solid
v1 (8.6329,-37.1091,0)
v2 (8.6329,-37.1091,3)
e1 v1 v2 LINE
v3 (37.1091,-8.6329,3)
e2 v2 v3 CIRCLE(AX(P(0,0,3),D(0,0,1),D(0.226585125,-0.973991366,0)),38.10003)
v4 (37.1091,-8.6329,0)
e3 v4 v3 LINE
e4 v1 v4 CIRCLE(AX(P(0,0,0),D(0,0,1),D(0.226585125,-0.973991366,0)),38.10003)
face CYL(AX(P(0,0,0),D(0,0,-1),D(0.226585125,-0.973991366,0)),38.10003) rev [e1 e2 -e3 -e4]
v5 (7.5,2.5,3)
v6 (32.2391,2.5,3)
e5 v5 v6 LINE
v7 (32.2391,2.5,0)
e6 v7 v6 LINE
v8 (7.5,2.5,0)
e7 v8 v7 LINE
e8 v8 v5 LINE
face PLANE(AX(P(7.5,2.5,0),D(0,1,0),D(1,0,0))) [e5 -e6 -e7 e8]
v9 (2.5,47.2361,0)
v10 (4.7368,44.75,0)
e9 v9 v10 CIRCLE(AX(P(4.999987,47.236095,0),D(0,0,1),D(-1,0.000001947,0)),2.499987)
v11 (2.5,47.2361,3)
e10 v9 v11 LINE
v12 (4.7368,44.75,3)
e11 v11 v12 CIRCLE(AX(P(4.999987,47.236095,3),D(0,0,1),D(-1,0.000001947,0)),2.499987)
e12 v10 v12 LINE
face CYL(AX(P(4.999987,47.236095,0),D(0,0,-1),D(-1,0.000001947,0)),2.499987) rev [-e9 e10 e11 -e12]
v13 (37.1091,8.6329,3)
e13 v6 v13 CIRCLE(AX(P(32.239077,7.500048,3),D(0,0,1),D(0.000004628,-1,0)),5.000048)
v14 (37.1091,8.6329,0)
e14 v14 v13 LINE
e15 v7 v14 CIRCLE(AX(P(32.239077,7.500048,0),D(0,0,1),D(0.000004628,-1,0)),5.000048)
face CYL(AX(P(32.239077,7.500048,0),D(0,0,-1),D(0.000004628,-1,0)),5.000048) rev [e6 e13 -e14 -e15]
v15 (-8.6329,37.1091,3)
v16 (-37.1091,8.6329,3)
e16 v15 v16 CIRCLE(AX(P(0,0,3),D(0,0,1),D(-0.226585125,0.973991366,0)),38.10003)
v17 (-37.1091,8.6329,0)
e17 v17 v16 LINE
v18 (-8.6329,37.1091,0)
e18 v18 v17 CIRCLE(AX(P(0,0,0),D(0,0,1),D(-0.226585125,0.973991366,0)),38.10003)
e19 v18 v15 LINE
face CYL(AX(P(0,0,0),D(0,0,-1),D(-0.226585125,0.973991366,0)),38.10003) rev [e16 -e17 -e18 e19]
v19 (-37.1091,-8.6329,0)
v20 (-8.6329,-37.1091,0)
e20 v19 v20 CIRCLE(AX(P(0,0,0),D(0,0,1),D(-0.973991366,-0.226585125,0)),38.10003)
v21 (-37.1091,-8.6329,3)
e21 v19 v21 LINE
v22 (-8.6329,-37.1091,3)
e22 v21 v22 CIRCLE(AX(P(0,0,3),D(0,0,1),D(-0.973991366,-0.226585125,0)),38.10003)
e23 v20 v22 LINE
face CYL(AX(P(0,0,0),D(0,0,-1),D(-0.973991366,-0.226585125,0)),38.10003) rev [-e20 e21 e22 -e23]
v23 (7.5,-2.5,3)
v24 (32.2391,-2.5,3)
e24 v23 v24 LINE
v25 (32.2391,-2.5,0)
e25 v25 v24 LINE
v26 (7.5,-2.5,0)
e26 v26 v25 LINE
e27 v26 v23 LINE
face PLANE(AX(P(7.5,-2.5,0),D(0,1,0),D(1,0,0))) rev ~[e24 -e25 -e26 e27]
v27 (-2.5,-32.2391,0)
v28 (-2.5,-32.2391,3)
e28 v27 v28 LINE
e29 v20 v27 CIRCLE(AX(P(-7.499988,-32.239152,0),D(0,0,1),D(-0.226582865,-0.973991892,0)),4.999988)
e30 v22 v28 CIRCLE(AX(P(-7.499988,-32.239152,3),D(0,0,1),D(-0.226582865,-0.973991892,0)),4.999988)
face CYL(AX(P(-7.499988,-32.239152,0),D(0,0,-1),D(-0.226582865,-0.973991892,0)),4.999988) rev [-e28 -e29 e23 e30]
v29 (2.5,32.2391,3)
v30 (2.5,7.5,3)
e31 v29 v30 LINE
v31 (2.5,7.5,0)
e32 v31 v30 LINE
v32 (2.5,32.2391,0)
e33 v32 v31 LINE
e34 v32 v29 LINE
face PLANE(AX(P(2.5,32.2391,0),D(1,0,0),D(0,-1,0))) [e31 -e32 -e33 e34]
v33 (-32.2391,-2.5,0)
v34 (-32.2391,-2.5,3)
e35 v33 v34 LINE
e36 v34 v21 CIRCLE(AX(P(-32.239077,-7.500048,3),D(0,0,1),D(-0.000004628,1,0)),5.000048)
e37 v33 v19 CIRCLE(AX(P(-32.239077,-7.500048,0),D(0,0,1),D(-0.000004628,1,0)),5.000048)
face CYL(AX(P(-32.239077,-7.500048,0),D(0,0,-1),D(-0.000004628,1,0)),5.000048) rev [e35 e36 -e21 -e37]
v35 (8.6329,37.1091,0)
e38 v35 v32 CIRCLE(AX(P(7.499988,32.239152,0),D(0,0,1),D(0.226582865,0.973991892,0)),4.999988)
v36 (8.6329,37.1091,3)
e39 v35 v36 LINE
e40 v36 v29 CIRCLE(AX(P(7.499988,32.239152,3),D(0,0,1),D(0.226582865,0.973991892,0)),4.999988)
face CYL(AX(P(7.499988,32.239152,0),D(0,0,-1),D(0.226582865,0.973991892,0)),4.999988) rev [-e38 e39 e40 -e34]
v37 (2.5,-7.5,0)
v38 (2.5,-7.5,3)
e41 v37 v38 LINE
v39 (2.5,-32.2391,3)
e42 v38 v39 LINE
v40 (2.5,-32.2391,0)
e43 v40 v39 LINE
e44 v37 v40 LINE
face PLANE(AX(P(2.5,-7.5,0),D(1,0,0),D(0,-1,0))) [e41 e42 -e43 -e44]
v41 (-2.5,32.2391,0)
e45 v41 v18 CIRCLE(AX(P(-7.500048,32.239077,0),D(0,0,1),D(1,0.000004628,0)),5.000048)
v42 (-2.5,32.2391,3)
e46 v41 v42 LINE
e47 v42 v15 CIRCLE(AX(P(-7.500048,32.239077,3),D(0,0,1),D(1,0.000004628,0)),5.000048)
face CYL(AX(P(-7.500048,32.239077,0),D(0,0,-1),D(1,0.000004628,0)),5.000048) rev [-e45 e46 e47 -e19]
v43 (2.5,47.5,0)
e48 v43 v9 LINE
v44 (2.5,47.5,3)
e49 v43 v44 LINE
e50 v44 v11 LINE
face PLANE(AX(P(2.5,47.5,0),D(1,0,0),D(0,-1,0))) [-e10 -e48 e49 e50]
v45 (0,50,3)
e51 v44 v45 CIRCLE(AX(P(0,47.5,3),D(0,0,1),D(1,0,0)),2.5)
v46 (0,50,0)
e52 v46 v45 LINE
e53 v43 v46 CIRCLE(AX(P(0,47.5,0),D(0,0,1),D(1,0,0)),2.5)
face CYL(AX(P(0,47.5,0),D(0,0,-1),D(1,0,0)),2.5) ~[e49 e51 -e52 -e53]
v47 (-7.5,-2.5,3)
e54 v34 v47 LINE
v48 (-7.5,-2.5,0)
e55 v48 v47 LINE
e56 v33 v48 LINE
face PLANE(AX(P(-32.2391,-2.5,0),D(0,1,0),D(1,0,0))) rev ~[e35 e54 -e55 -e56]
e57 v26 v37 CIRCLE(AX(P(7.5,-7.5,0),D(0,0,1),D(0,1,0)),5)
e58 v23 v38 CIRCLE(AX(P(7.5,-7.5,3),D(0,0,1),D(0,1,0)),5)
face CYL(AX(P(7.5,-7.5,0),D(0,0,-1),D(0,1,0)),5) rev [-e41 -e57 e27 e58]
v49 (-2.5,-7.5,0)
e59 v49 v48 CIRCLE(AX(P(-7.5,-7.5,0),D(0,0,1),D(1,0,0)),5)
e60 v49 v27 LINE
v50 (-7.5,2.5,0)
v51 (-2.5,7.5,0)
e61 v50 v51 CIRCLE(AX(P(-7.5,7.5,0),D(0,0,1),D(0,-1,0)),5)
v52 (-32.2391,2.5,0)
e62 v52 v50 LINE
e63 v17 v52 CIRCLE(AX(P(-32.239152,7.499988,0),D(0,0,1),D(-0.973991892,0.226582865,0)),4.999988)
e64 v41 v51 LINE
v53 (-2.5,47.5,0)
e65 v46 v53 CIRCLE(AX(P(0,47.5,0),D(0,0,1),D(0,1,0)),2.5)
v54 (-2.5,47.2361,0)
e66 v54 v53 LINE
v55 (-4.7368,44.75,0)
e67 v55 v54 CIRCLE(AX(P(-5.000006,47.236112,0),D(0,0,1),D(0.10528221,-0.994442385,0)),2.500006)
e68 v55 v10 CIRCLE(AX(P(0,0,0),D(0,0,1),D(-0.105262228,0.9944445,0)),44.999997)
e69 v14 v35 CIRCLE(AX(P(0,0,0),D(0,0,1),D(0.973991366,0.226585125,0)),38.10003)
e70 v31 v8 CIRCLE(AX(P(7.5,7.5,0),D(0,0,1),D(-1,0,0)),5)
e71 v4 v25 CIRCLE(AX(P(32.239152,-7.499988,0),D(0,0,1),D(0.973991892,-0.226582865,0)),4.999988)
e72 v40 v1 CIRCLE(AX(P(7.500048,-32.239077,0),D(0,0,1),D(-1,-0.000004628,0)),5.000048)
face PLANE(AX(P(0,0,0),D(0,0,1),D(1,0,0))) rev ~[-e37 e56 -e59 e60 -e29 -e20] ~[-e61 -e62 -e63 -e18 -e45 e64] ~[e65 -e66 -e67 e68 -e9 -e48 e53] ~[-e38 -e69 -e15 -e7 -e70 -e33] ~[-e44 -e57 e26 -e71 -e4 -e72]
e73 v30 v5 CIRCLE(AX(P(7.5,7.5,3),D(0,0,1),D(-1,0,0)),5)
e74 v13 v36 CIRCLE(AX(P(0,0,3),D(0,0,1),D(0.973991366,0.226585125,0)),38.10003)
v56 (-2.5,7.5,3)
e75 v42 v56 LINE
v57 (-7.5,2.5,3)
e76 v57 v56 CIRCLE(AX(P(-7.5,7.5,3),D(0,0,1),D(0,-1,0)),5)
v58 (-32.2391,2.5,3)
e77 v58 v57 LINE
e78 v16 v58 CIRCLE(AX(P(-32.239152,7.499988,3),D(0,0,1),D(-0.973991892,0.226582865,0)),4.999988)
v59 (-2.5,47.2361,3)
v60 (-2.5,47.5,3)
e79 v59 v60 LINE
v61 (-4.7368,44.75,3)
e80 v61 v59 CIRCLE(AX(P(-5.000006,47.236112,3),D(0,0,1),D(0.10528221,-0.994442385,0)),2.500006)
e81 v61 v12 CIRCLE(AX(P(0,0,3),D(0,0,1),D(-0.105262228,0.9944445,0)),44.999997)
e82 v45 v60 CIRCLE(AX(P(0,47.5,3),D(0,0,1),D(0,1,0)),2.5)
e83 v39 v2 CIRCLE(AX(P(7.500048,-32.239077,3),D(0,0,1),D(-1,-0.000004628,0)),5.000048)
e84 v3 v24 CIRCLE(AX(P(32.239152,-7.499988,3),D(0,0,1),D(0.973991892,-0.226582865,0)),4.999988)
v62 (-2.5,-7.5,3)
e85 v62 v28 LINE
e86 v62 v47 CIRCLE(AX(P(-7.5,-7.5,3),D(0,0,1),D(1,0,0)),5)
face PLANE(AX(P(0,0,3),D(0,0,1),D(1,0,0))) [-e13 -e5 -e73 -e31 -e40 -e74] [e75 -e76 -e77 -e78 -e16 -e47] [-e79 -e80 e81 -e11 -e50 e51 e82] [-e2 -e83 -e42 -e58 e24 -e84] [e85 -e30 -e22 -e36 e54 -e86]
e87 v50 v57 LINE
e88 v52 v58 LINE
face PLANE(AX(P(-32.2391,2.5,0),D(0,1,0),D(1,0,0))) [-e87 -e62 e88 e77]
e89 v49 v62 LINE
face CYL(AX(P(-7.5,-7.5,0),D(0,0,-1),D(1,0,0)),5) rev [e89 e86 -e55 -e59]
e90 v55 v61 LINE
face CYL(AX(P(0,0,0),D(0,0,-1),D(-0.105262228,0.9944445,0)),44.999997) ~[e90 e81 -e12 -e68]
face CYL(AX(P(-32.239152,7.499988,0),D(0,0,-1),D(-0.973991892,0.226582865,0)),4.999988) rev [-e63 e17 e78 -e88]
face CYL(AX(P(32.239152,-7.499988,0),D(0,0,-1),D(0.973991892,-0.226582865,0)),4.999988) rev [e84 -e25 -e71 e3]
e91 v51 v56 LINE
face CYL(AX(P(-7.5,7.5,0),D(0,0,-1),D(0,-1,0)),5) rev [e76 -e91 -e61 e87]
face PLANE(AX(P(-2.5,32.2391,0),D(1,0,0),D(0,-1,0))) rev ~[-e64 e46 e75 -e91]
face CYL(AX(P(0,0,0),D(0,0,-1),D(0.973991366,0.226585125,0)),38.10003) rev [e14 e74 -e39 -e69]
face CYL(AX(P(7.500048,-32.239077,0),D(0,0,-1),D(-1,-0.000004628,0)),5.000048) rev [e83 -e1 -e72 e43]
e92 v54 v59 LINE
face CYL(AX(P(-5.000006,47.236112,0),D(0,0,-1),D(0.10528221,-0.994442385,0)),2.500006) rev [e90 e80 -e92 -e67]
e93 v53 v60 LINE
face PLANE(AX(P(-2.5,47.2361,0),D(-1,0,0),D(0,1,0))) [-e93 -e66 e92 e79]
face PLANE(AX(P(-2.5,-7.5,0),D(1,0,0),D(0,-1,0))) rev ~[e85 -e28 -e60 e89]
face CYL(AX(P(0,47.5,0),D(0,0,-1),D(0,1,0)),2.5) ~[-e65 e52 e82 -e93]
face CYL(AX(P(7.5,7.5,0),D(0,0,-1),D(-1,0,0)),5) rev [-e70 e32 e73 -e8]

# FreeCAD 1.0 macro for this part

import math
import FreeCAD as App
import Part
import Sketcher

V = App.Vector

doc = App.newDocument("Part")
body = doc.addObject("PartDesign::Body", "Body")

# Sketch on XY plane
sketch1 = doc.addObject("Sketcher::SketchObject", "Sketch")
body.addObject(sketch1)
sketch1.AttachmentSupport = (doc.XY_Plane, [""])
sketch1.MapMode = "FlatFace"
sketch1.addGeometry([
    Part.ArcOfCircle(Part.Circle(V(-5, 47.24, 0), V(0, 0, 1), 2.5), math.radians(-84), math.radians(0)),  # 0
    Part.ArcOfCircle(Part.Circle(V(0, 0, 0), V(0, 0, 1), 45), math.radians(96), math.radians(444)),  # 1
    Part.ArcOfCircle(Part.Circle(V(5, 47.24, 0), V(0, 0, 1), 2.5), math.radians(180), math.radians(264)),  # 2
    Part.LineSegment(V(2.5, 47.24, 0), V(2.5, 47.5, 0)),  # 3
    Part.ArcOfCircle(Part.Circle(V(0, 47.5, 0), V(0, 0, 1), 2.5), math.radians(0), math.radians(180)),  # 4
    Part.LineSegment(V(-2.5, 47.5, 0), V(-2.5, 47.24, 0)),  # 5
    Part.ArcOfCircle(Part.Circle(V(-7.5, -7.5, 0), V(0, 0, 1), 5), math.radians(0), math.radians(90)),  # 6
    Part.LineSegment(V(-2.5, -7.5, 0), V(-2.5, -32.24, 0)),  # 7
    Part.ArcOfCircle(Part.Circle(V(-7.5, -32.24, 0), V(0, 0, 1), 5), math.radians(-103), math.radians(0)),  # 8
    Part.ArcOfCircle(Part.Circle(V(0, 0, 0), V(0, 0, 1), 38.1), math.radians(-167), math.radians(-103)),  # 9
    Part.ArcOfCircle(Part.Circle(V(-32.24, -7.5, 0), V(0, 0, 1), 5), math.radians(90), math.radians(193)),  # 10
    Part.LineSegment(V(-32.24, -2.5, 0), V(-7.5, -2.5, 0)),  # 11
    Part.ArcOfCircle(Part.Circle(V(7.5, -7.5, 0), V(0, 0, 1), 5), math.radians(90), math.radians(180)),  # 12
    Part.LineSegment(V(7.5, -2.5, 0), V(32.24, -2.5, 0)),  # 13
    Part.ArcOfCircle(Part.Circle(V(32.24, -7.5, 0), V(0, 0, 1), 5), math.radians(-13), math.radians(90)),  # 14
    Part.ArcOfCircle(Part.Circle(V(0, 0, 0), V(0, 0, 1), 38.1), math.radians(-77), math.radians(-13)),  # 15
    Part.ArcOfCircle(Part.Circle(V(7.5, -32.24, 0), V(0, 0, 1), 5), math.radians(180), math.radians(283)),  # 16
    Part.LineSegment(V(2.5, -32.24, 0), V(2.5, -7.5, 0)),  # 17
    Part.LineSegment(V(-7.5, 2.5, 0), V(-32.24, 2.5, 0)),  # 18
    Part.ArcOfCircle(Part.Circle(V(-32.24, 7.5, 0), V(0, 0, 1), 5), math.radians(167), math.radians(270)),  # 19
    Part.ArcOfCircle(Part.Circle(V(0, 0, 0), V(0, 0, 1), 38.1), math.radians(103), math.radians(167)),  # 20
    Part.ArcOfCircle(Part.Circle(V(-7.5, 32.24, 0), V(0, 0, 1), 5), math.radians(0), math.radians(103)),  # 21
    Part.LineSegment(V(-2.5, 32.24, 0), V(-2.5, 7.5, 0)),  # 22
    Part.ArcOfCircle(Part.Circle(V(-7.5, 7.5, 0), V(0, 0, 1), 5), math.radians(-90), math.radians(0)),  # 23
    Part.LineSegment(V(32.24, 2.5, 0), V(7.5, 2.5, 0)),  # 24
    Part.ArcOfCircle(Part.Circle(V(7.5, 7.5, 0), V(0, 0, 1), 5), math.radians(180), math.radians(270)),  # 25
    Part.LineSegment(V(2.5, 7.5, 0), V(2.5, 32.24, 0)),  # 26
    Part.ArcOfCircle(Part.Circle(V(7.5, 32.24, 0), V(0, 0, 1), 5), math.radians(77), math.radians(180)),  # 27
    Part.ArcOfCircle(Part.Circle(V(0, 0, 0), V(0, 0, 1), 38.1), math.radians(13), math.radians(77)),  # 28
    Part.ArcOfCircle(Part.Circle(V(32.24, 7.5, 0), V(0, 0, 1), 5), math.radians(-90), math.radians(13)),  # 29
], False)
sketch1.addConstraint([
    Sketcher.Constraint("Tangent", 0, 1, 1, 1),
    Sketcher.Constraint("Tangent", 1, 2, 2, 2),
    Sketcher.Constraint("Tangent", 2, 1, 3, 1),
    Sketcher.Constraint("Tangent", 3, 2, 4, 1),
    Sketcher.Constraint("Tangent", 4, 2, 5, 1),
    Sketcher.Constraint("Tangent", 5, 2, 0, 2),
    Sketcher.Constraint("Tangent", 6, 1, 7, 1),
    Sketcher.Constraint("Tangent", 7, 2, 8, 2),
    Sketcher.Constraint("Tangent", 8, 1, 9, 2),
    Sketcher.Constraint("Tangent", 9, 1, 10, 2),
    Sketcher.Constraint("Tangent", 10, 1, 11, 1),
    Sketcher.Constraint("Tangent", 11, 2, 6, 2),
    Sketcher.Constraint("Tangent", 12, 1, 13, 1),
    Sketcher.Constraint("Tangent", 13, 2, 14, 2),
    Sketcher.Constraint("Tangent", 14, 1, 15, 2),
    Sketcher.Constraint("Tangent", 15, 1, 16, 2),
    Sketcher.Constraint("Tangent", 16, 1, 17, 1),
    Sketcher.Constraint("Tangent", 17, 2, 12, 2),
    Sketcher.Constraint("Tangent", 18, 2, 19, 2),
    Sketcher.Constraint("Tangent", 19, 1, 20, 2),
    Sketcher.Constraint("Tangent", 20, 1, 21, 2),
    Sketcher.Constraint("Tangent", 21, 1, 22, 1),
    Sketcher.Constraint("Tangent", 22, 2, 23, 2),
    Sketcher.Constraint("Tangent", 23, 1, 18, 1),
    Sketcher.Constraint("Tangent", 24, 2, 25, 2),
    Sketcher.Constraint("Tangent", 25, 1, 26, 1),
    Sketcher.Constraint("Tangent", 26, 2, 27, 2),
    Sketcher.Constraint("Tangent", 27, 1, 28, 2),
    Sketcher.Constraint("Tangent", 28, 1, 29, 2),
    Sketcher.Constraint("Tangent", 29, 1, 24, 1),
    Sketcher.Constraint("Vertical", 3),
    Sketcher.Constraint("Vertical", 5),
    Sketcher.Constraint("Vertical", 7),
    Sketcher.Constraint("Horizontal", 11),
    Sketcher.Constraint("Horizontal", 13),
    Sketcher.Constraint("Vertical", 17),
    Sketcher.Constraint("Horizontal", 18),
    Sketcher.Constraint("Vertical", 22),
    Sketcher.Constraint("Horizontal", 24),
    Sketcher.Constraint("Vertical", 26),
    Sketcher.Constraint("Coincident", 1, 3, -1, 1),
    Sketcher.Constraint("Coincident", 9, 3, -1, 1),
    Sketcher.Constraint("Coincident", 15, 3, -1, 1),
    Sketcher.Constraint("Coincident", 20, 3, -1, 1),
    Sketcher.Constraint("Coincident", 28, 3, -1, 1),
    Sketcher.Constraint("Equal", 0, 2),
    Sketcher.Constraint("Equal", 2, 4),
    Sketcher.Constraint("Equal", 6, 8),
    Sketcher.Constraint("Equal", 8, 10),
    Sketcher.Constraint("Equal", 10, 12),
    Sketcher.Constraint("Equal", 12, 14),
    Sketcher.Constraint("Equal", 9, 15),
    Sketcher.Constraint("Equal", 14, 16),
    Sketcher.Constraint("Equal", 16, 19),
    Sketcher.Constraint("Equal", 15, 20),
    Sketcher.Constraint("Equal", 19, 21),
    Sketcher.Constraint("Equal", 21, 23),
    Sketcher.Constraint("Equal", 23, 25),
    Sketcher.Constraint("Equal", 25, 27),
    Sketcher.Constraint("Equal", 20, 28),
    Sketcher.Constraint("Equal", 27, 29),
    Sketcher.Constraint("Symmetric", 12, 3, 23, 3, -1, 1),
    Sketcher.Constraint("Symmetric", 6, 3, 25, 3, -1, 1),
    Sketcher.Constraint("Symmetric", 6, 3, 12, 3, -2),
    Sketcher.Constraint("PointOnObject", 4, 3, -2),
    Sketcher.Constraint("Vertical", 5, 2, 6, 1),
    Sketcher.Constraint("Equal", 24, 7),
    Sketcher.Constraint("Radius", 1, 45.0),
    Sketcher.Constraint("Radius", 6, 5.0),
    Sketcher.Constraint("Radius", 0, 2.5),
    Sketcher.Constraint("Radius", 9, 38.1),
    Sketcher.Constraint("DistanceY", 6, 3, 4, 3, 55.0),
])
pad1 = doc.addObject("PartDesign::Pad", "Pad")
body.addObject(pad1)
pad1.Profile = sketch1
pad1.Length = 3

doc.recompute()
